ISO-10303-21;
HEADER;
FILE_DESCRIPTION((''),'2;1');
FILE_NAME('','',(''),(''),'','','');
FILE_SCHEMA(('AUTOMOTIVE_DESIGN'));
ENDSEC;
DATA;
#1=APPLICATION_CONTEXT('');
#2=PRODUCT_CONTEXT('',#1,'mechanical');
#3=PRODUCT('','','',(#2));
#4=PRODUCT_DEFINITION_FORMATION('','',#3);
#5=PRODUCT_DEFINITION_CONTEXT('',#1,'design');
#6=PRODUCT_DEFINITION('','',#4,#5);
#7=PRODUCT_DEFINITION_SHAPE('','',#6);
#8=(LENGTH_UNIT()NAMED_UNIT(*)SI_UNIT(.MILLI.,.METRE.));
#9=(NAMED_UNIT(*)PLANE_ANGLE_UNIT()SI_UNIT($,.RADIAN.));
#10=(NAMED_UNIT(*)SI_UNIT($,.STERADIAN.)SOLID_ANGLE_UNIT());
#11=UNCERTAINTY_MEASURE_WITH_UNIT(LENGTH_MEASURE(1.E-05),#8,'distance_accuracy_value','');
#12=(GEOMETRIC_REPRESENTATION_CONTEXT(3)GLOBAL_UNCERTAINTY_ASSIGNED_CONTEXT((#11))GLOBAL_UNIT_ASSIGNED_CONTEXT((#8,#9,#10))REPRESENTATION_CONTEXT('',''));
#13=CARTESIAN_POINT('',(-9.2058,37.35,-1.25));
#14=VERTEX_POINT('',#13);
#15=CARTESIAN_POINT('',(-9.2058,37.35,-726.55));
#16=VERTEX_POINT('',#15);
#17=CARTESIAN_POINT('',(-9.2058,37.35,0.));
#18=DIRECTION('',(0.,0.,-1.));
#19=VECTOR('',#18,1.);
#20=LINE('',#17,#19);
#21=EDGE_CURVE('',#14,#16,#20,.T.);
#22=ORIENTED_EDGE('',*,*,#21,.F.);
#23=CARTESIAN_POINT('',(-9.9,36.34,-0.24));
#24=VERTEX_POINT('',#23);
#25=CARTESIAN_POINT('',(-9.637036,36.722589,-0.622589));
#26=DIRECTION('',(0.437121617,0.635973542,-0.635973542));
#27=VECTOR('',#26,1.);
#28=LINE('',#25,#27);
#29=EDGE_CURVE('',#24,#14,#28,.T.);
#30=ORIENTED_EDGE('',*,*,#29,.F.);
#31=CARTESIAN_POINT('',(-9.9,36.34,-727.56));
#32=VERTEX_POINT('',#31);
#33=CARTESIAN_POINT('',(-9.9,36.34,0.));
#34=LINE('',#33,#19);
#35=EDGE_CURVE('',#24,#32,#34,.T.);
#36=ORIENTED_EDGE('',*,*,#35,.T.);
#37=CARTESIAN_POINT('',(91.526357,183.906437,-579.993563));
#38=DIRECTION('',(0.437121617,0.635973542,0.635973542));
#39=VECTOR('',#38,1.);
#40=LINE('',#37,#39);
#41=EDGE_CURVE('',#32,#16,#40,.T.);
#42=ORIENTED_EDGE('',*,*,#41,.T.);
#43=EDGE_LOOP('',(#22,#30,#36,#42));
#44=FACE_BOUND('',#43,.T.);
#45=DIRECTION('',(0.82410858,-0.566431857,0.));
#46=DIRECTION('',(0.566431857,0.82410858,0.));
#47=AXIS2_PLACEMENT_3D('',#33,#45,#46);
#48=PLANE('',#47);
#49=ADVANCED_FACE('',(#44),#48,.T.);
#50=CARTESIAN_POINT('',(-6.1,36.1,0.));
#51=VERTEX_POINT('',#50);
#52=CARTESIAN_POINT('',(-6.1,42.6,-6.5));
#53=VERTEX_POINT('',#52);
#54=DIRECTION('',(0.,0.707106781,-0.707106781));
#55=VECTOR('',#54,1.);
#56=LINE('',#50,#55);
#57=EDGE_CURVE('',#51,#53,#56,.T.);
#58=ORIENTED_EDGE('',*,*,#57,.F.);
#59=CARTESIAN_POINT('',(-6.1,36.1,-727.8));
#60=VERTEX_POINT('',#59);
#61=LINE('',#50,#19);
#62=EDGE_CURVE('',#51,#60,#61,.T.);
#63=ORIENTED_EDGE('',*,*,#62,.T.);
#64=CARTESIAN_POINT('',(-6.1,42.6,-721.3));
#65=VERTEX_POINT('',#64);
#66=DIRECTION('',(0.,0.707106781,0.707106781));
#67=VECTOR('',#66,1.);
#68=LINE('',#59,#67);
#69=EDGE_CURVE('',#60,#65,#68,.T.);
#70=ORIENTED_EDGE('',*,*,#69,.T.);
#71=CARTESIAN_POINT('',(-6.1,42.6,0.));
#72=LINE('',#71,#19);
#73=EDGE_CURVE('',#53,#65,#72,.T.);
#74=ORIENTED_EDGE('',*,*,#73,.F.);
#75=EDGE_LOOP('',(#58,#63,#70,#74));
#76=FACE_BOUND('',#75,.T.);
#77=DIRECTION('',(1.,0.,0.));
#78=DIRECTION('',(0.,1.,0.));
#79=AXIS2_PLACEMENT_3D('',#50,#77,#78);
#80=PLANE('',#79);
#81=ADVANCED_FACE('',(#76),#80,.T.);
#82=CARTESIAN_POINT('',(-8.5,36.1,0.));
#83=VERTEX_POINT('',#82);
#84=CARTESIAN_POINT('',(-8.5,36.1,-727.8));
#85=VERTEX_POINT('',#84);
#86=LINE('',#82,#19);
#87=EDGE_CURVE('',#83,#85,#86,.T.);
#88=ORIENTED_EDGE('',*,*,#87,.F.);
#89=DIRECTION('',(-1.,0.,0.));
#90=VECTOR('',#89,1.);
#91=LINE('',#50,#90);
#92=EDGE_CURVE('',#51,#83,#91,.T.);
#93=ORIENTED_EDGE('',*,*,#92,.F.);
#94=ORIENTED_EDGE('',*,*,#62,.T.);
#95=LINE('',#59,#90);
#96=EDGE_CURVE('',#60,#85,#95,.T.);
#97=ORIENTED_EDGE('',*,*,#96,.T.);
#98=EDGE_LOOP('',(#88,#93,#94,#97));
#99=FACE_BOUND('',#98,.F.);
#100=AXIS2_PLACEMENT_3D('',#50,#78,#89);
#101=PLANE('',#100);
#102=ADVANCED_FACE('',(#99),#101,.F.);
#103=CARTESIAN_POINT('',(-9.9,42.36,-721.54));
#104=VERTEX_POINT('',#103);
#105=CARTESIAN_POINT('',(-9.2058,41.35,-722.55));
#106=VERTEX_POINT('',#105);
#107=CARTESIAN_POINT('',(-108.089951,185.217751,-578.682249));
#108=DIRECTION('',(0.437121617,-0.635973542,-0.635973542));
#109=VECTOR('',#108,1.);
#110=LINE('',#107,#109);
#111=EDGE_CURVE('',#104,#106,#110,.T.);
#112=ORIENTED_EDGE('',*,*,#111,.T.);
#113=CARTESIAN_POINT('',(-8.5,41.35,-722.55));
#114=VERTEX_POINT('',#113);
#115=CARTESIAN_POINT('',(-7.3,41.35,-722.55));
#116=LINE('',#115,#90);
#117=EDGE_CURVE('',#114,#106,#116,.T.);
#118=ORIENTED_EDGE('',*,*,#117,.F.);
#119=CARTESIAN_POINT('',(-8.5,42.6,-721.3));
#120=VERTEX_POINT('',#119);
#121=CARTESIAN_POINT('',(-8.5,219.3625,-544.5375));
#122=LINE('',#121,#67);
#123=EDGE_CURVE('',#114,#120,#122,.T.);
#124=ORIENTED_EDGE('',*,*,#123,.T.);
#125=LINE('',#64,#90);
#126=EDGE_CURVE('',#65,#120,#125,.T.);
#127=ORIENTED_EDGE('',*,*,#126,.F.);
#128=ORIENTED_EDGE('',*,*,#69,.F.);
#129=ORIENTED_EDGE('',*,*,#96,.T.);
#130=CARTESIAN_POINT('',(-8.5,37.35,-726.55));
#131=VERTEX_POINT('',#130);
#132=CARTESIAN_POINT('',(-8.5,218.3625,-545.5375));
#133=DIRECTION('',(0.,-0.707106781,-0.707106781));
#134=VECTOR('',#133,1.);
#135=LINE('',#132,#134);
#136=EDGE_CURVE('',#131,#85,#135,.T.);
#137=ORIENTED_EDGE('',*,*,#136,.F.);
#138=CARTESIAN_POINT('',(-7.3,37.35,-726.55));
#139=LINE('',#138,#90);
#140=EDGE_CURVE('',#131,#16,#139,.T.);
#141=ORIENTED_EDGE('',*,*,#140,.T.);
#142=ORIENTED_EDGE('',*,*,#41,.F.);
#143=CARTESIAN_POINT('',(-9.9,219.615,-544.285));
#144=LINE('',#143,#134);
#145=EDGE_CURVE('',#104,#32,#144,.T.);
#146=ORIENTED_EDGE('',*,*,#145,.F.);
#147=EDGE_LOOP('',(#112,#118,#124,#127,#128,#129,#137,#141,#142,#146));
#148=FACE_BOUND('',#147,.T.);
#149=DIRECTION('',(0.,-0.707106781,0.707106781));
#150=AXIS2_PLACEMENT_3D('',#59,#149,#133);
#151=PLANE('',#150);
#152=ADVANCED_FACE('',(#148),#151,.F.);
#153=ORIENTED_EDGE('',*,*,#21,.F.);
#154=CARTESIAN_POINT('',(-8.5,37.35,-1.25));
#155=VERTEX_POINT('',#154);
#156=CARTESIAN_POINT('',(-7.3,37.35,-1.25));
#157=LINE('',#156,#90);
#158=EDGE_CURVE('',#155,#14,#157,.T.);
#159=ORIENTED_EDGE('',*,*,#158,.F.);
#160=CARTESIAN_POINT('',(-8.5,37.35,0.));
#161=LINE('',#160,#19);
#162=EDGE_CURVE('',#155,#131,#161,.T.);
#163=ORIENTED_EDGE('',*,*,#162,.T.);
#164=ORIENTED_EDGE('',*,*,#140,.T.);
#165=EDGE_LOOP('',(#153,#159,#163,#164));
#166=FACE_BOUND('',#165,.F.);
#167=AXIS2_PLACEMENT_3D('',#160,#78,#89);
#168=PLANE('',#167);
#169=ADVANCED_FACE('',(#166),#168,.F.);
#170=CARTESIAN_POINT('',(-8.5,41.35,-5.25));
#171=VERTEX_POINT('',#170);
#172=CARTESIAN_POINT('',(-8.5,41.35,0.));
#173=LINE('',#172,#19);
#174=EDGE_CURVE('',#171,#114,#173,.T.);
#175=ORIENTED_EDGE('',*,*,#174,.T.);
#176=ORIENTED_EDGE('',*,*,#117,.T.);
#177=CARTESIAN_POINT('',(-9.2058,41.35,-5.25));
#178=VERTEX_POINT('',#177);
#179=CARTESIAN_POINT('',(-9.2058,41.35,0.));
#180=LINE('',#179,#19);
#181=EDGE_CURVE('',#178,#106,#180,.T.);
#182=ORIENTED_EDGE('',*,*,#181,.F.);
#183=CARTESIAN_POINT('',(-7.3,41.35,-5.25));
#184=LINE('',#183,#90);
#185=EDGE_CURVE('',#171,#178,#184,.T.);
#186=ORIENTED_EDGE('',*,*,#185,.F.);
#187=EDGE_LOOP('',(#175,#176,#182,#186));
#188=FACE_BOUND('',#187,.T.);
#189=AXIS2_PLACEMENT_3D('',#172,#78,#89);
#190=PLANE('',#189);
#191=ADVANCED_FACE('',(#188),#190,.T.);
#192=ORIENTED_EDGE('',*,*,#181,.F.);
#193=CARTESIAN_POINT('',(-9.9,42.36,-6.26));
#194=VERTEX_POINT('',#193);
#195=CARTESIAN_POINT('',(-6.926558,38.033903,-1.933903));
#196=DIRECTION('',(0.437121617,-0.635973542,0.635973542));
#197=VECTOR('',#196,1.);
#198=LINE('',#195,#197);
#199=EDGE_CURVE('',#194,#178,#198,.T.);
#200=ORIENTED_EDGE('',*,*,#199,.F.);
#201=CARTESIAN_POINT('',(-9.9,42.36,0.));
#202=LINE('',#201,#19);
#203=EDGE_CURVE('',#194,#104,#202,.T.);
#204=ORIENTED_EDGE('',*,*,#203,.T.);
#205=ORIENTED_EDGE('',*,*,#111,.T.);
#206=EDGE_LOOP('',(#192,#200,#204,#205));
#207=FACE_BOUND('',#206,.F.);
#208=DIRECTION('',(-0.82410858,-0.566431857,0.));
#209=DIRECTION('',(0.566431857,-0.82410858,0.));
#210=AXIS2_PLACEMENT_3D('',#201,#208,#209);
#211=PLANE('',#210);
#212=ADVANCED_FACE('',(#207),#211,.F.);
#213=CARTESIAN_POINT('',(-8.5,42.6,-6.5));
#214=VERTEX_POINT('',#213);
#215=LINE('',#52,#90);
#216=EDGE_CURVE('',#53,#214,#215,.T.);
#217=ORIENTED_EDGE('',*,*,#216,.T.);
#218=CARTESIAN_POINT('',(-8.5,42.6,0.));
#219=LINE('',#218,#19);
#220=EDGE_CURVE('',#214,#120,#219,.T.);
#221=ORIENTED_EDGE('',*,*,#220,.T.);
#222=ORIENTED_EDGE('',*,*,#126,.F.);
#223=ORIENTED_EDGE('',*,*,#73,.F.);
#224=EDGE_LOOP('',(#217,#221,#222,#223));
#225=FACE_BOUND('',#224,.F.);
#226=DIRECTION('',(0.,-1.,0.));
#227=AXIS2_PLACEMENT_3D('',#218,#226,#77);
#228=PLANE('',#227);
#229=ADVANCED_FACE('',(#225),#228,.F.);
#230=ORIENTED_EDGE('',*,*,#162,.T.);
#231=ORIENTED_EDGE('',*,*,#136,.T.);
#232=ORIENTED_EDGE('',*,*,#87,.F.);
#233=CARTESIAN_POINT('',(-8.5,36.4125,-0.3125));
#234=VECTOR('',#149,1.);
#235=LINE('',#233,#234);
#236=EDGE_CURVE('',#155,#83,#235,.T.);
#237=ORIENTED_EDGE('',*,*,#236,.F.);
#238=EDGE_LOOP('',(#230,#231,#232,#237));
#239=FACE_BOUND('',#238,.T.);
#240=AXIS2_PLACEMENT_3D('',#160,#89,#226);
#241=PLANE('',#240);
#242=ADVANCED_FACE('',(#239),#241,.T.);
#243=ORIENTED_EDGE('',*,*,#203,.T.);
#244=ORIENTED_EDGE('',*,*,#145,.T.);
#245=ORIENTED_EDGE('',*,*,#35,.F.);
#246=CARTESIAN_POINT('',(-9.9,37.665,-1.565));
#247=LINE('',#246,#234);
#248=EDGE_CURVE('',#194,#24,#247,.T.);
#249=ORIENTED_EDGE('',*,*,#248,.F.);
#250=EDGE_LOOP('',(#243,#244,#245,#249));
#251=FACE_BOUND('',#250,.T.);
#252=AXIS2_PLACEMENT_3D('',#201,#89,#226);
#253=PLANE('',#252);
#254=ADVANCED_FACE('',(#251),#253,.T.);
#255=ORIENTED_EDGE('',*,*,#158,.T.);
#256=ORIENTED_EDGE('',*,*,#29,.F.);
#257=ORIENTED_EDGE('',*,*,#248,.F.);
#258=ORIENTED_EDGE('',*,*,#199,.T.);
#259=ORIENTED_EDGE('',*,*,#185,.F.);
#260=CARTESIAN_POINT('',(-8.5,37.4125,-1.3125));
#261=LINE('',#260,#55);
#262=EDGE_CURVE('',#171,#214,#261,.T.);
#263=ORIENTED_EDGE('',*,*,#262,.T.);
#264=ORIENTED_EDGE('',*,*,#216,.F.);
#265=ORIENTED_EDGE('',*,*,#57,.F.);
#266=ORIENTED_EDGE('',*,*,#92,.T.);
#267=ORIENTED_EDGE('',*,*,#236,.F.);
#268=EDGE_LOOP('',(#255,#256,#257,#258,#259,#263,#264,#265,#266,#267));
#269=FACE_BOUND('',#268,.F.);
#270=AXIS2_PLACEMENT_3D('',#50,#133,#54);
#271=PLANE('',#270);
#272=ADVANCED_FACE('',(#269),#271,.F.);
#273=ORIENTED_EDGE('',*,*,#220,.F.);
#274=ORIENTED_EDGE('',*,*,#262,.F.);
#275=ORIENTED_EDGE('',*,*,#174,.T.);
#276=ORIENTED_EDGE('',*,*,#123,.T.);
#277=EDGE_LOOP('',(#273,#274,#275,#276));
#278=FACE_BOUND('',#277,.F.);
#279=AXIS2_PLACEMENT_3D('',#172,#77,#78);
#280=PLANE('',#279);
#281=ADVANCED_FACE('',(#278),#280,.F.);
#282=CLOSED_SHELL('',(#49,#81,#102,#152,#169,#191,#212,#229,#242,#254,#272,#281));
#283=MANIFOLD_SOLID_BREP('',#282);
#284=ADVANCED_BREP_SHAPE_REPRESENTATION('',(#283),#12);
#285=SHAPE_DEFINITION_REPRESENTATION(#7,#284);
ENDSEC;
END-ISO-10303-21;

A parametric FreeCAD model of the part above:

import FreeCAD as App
import Part
import Sketcher

V = App.Vector


def add_polygon(sketch, points):
    """Adds a closed chain of lines whose ends are joined by coincident constraints."""
    first, n = sketch.GeometryCount, len(points)
    for a, b in zip(points, points[1:] + points[:1]):
        sketch.addGeometry(Part.LineSegment(App.Vector(*a, 0), App.Vector(*b, 0)), False)
    for i in range(n):
        sketch.addConstraint(Sketcher.Constraint("Coincident", first + i, 2, first + (i + 1) % n, 1))

doc = App.newDocument("Part")
body = doc.addObject("PartDesign::Body", "Body")

# Sketch on XY plane
sketch1 = body.newObject("Sketcher::SketchObject", "Sketch")
sketch1.AttachmentSupport = (doc.getObject("XY_Plane"), [""])
sketch1.MapMode = "FlatFace"
add_polygon(sketch1, [(-6.1, 42.6), (-8.5, 42.6), (-8.5, 41.4), (-9.2, 41.4), (-9.9, 42.4), (-9.9, 36.3), (-9.2, 37.4), (-8.5, 37.4), (-8.5, 36.1), (-6.1, 36.1)])  # lines 0-9
sketch1.addConstraint([
    Sketcher.Constraint("Horizontal", 0),
    Sketcher.Constraint("Vertical", 1),
    Sketcher.Constraint("Horizontal", 2),
    Sketcher.Constraint("Vertical", 4),
    Sketcher.Constraint("Horizontal", 6),
    Sketcher.Constraint("Vertical", 7),
    Sketcher.Constraint("Horizontal", 8),
    Sketcher.Constraint("Vertical", 9),
    Sketcher.Constraint("Vertical", 2, 2, 5, 2),
    Sketcher.Constraint("Vertical", 1, 2, 6, 2),
    Sketcher.Constraint("Equal", 1, 7),
    Sketcher.Constraint("Equal", 3, 5),
    Sketcher.Constraint("DistanceX", 0, 2, 0, 1, 2.4),
    Sketcher.Constraint("DistanceY", 9, 1, 9, 2, 6.5),
    Sketcher.Constraint("DistanceY", 5, 2, 2, 2, 4.0),
    Sketcher.Constraint("DistanceY", 4, 2, 4, 1, 6.02),
    Sketcher.Constraint("DistanceX", 2, 2, 2, 1, 0.7058),
    Sketcher.Constraint("DistanceX", 0, 2, -1, 1, 8.5),
    Sketcher.Constraint("DistanceY", -1, 1, 0, 2, 42.6),
    Sketcher.Constraint("DistanceX", 3, 2, -1, 1, 9.9),
])
pad1 = body.newObject("PartDesign::Pad", "Pad")
pad1.Profile = sketch1
pad1.Length = 727.8
pad1.Reversed = True

# Sketch on YZ plane
sketch2 = body.newObject("Sketcher::SketchObject", "Sketch001")
sketch2.AttachmentSupport = (doc.getObject("YZ_Plane"), [""])
sketch2.MapMode = "FlatFace"
sketch2.AttachmentOffset = App.Placement(V(0, 0, -6.1), App.Rotation())
add_polygon(sketch2, [(43, 0), (36, 0), (43, -6)])  # lines 0-2
sketch2.addConstraint([
    Sketcher.Constraint("Horizontal", 0),
    Sketcher.Constraint("Vertical", 2),
    Sketcher.Constraint("PointOnObject", 0, 2, -1),
    Sketcher.Constraint("Equal", 0, 2),
    Sketcher.Constraint("DistanceX", 0, 2, 0, 1, 6.5),
    Sketcher.Constraint("DistanceX", -1, 1, 0, 2, 36.1),
])
pocket1 = body.newObject("PartDesign::Pocket", "Pocket")
pocket1.Profile = sketch2
pocket1.Type = "ThroughAll"
doc.recompute()

datumplane = body.newObject("PartDesign::Plane", "DatumPlane")
datumplane.AttachmentSupport = (doc.getObject("XY_Plane"), [""])
datumplane.MapMode = "FlatFace"
datumplane.AttachmentOffset = App.Placement(V(0, 0, -363.9), App.Rotation())
mirrored = body.newObject("PartDesign::Mirrored", "Mirrored")
mirrored.Originals = [pocket1]
mirrored.MirrorPlane = (datumplane, [""])
body.Tip = mirrored

doc.recompute()
